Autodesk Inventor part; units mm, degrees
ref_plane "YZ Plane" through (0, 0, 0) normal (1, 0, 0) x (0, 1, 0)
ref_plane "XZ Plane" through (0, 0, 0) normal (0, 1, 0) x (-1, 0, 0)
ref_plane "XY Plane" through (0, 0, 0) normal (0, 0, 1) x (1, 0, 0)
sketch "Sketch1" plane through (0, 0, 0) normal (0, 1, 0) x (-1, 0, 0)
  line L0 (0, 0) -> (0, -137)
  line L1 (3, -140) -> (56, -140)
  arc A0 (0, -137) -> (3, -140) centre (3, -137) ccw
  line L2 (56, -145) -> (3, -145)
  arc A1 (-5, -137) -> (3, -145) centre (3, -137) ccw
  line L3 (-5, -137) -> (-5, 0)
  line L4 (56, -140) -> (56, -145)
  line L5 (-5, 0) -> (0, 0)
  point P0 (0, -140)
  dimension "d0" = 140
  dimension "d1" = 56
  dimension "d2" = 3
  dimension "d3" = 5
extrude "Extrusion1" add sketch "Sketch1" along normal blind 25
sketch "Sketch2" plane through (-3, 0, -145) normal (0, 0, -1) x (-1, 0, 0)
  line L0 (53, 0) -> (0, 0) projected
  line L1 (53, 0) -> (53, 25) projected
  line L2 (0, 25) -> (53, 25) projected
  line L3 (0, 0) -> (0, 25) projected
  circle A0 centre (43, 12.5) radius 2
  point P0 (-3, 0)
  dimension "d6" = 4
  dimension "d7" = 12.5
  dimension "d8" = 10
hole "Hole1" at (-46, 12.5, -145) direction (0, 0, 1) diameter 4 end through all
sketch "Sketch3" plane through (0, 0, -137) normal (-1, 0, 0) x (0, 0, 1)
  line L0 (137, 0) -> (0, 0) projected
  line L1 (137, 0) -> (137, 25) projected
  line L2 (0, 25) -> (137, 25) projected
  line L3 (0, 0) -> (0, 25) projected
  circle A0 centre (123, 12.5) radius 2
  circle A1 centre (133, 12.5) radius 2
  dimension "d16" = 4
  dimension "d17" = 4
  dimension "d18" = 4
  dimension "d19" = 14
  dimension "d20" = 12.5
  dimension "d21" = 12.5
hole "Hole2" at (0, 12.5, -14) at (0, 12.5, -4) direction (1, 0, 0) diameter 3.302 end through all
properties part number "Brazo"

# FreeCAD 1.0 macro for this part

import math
import FreeCAD as App
import Part
import Sketcher

doc = App.newDocument("Part")
body = doc.addObject("PartDesign::Body", "Body")

sketch1 = body.newObject("Sketcher::SketchObject", "Sketch")
sketch1.AttachmentSupport = (doc.getObject("XZ_Plane"), [""])
sketch1.MapMode = "FlatFace"
sketch1.addGeometry([
    Part.LineSegment(App.Vector(0, -137, 0), App.Vector(0, 0, 0)),
    Part.LineSegment(App.Vector(0, 0, 0), App.Vector(5, 0, 0)),
    Part.LineSegment(App.Vector(5, 0, 0), App.Vector(5, -137, 0)),
    Part.ArcOfCircle(Part.Circle(App.Vector(-3, -137, 0), App.Vector(0, 0, 1), 8), math.radians(-90), math.radians(0)),
    Part.LineSegment(App.Vector(-3, -145, 0), App.Vector(-56, -145, 0)),
    Part.LineSegment(App.Vector(-56, -145, 0), App.Vector(-56, -140, 0)),
    Part.LineSegment(App.Vector(-56, -140, 0), App.Vector(-3, -140, 0)),
    Part.ArcOfCircle(Part.Circle(App.Vector(-3, -137, 0), App.Vector(0, 0, 1), 3), math.radians(-90), math.radians(0)),
], False)
sketch1.addConstraint([
    Sketcher.Constraint("Coincident", 0, 2, 1, 1),
    Sketcher.Constraint("Coincident", 1, 2, 2, 1),
    Sketcher.Constraint("Tangent", 2, 2, 3, 2),
    Sketcher.Constraint("Tangent", 3, 1, 4, 1),
    Sketcher.Constraint("Coincident", 4, 2, 5, 1),
    Sketcher.Constraint("Coincident", 5, 2, 6, 1),
    Sketcher.Constraint("Tangent", 6, 2, 7, 1),
    Sketcher.Constraint("Tangent", 7, 2, 0, 1),
    Sketcher.Constraint("Vertical", 0),
    Sketcher.Constraint("Horizontal", 1),
    Sketcher.Constraint("Vertical", 2),
    Sketcher.Constraint("Horizontal", 4),
    Sketcher.Constraint("Vertical", 5),
    Sketcher.Constraint("Horizontal", 6),
    Sketcher.Constraint("Coincident", 0, 2, -1, 1),
    Sketcher.Constraint("Coincident", 7, 3, 3, 3),
    Sketcher.Constraint("Radius", 7, 3.0),
    Sketcher.Constraint("DistanceX", 1, 1, 1, 2, 5.0),
    Sketcher.Constraint("DistanceX", 4, 2, -1, 1, 56.0),
    Sketcher.Constraint("DistanceY", 5, 2, -1, 1, 140.0),
])
pad1 = body.newObject("PartDesign::Pad", "Pad")
pad1.Profile = sketch1
pad1.Length = 25
pad1.Reversed = True

sketch2 = body.newObject("Sketcher::SketchObject", "Sketch001")
sketch2.AttachmentSupport = (doc.getObject("XY_Plane"), [""])
sketch2.MapMode = "FlatFace"
sketch2.AttachmentOffset = App.Placement(App.Vector(0, 0, -145), App.Rotation())
sketch2.addGeometry(Part.Circle(App.Vector(-46, 12.5, 0), App.Vector(0, 0, 1), 2), False)
sketch2.addConstraint([
    Sketcher.Constraint("Diameter", 0, 4.0),
    Sketcher.Constraint("DistanceX", 0, 3, -1, 1, 46.0),
    Sketcher.Constraint("DistanceY", -1, 1, 0, 3, 12.5),
])
doc.recompute()
hole = body.newObject("PartDesign::Hole", "Hole")
hole.Profile = sketch2
hole.ThreadType = "None"
hole.Diameter = 4
hole.DepthType = "ThroughAll"
hole.Reversed = True

sketch3 = body.newObject("Sketcher::SketchObject", "Sketch002")
sketch3.AttachmentSupport = (doc.getObject("YZ_Plane"), [""])
sketch3.MapMode = "FlatFace"
sketch3.addGeometry([
    Part.Circle(App.Vector(12.5, -14, 0), App.Vector(0, 0, 1), 1.7),
    Part.Circle(App.Vector(12.5, -4, 0), App.Vector(0, 0, 1), 1.7),
], False)
sketch3.addConstraint([
    Sketcher.Constraint("Equal", 0, 1),
    Sketcher.Constraint("Vertical", 0, 3, 1, 3),
    Sketcher.Constraint("Diameter", 0, 3.302),
    Sketcher.Constraint("DistanceY", 0, 3, -1, 1, 14.0),
    Sketcher.Constraint("DistanceY", 1, 3, -1, 1, 4.0),
    Sketcher.Constraint("DistanceX", -1, 1, 0, 3, 12.5),
])
doc.recompute()
hole2 = body.newObject("PartDesign::Hole", "Hole001")
hole2.Profile = sketch3
hole2.ThreadType = "None"
hole2.Diameter = 3.302
hole2.DepthType = "ThroughAll"
hole2.Reversed = True

doc.recompute()
